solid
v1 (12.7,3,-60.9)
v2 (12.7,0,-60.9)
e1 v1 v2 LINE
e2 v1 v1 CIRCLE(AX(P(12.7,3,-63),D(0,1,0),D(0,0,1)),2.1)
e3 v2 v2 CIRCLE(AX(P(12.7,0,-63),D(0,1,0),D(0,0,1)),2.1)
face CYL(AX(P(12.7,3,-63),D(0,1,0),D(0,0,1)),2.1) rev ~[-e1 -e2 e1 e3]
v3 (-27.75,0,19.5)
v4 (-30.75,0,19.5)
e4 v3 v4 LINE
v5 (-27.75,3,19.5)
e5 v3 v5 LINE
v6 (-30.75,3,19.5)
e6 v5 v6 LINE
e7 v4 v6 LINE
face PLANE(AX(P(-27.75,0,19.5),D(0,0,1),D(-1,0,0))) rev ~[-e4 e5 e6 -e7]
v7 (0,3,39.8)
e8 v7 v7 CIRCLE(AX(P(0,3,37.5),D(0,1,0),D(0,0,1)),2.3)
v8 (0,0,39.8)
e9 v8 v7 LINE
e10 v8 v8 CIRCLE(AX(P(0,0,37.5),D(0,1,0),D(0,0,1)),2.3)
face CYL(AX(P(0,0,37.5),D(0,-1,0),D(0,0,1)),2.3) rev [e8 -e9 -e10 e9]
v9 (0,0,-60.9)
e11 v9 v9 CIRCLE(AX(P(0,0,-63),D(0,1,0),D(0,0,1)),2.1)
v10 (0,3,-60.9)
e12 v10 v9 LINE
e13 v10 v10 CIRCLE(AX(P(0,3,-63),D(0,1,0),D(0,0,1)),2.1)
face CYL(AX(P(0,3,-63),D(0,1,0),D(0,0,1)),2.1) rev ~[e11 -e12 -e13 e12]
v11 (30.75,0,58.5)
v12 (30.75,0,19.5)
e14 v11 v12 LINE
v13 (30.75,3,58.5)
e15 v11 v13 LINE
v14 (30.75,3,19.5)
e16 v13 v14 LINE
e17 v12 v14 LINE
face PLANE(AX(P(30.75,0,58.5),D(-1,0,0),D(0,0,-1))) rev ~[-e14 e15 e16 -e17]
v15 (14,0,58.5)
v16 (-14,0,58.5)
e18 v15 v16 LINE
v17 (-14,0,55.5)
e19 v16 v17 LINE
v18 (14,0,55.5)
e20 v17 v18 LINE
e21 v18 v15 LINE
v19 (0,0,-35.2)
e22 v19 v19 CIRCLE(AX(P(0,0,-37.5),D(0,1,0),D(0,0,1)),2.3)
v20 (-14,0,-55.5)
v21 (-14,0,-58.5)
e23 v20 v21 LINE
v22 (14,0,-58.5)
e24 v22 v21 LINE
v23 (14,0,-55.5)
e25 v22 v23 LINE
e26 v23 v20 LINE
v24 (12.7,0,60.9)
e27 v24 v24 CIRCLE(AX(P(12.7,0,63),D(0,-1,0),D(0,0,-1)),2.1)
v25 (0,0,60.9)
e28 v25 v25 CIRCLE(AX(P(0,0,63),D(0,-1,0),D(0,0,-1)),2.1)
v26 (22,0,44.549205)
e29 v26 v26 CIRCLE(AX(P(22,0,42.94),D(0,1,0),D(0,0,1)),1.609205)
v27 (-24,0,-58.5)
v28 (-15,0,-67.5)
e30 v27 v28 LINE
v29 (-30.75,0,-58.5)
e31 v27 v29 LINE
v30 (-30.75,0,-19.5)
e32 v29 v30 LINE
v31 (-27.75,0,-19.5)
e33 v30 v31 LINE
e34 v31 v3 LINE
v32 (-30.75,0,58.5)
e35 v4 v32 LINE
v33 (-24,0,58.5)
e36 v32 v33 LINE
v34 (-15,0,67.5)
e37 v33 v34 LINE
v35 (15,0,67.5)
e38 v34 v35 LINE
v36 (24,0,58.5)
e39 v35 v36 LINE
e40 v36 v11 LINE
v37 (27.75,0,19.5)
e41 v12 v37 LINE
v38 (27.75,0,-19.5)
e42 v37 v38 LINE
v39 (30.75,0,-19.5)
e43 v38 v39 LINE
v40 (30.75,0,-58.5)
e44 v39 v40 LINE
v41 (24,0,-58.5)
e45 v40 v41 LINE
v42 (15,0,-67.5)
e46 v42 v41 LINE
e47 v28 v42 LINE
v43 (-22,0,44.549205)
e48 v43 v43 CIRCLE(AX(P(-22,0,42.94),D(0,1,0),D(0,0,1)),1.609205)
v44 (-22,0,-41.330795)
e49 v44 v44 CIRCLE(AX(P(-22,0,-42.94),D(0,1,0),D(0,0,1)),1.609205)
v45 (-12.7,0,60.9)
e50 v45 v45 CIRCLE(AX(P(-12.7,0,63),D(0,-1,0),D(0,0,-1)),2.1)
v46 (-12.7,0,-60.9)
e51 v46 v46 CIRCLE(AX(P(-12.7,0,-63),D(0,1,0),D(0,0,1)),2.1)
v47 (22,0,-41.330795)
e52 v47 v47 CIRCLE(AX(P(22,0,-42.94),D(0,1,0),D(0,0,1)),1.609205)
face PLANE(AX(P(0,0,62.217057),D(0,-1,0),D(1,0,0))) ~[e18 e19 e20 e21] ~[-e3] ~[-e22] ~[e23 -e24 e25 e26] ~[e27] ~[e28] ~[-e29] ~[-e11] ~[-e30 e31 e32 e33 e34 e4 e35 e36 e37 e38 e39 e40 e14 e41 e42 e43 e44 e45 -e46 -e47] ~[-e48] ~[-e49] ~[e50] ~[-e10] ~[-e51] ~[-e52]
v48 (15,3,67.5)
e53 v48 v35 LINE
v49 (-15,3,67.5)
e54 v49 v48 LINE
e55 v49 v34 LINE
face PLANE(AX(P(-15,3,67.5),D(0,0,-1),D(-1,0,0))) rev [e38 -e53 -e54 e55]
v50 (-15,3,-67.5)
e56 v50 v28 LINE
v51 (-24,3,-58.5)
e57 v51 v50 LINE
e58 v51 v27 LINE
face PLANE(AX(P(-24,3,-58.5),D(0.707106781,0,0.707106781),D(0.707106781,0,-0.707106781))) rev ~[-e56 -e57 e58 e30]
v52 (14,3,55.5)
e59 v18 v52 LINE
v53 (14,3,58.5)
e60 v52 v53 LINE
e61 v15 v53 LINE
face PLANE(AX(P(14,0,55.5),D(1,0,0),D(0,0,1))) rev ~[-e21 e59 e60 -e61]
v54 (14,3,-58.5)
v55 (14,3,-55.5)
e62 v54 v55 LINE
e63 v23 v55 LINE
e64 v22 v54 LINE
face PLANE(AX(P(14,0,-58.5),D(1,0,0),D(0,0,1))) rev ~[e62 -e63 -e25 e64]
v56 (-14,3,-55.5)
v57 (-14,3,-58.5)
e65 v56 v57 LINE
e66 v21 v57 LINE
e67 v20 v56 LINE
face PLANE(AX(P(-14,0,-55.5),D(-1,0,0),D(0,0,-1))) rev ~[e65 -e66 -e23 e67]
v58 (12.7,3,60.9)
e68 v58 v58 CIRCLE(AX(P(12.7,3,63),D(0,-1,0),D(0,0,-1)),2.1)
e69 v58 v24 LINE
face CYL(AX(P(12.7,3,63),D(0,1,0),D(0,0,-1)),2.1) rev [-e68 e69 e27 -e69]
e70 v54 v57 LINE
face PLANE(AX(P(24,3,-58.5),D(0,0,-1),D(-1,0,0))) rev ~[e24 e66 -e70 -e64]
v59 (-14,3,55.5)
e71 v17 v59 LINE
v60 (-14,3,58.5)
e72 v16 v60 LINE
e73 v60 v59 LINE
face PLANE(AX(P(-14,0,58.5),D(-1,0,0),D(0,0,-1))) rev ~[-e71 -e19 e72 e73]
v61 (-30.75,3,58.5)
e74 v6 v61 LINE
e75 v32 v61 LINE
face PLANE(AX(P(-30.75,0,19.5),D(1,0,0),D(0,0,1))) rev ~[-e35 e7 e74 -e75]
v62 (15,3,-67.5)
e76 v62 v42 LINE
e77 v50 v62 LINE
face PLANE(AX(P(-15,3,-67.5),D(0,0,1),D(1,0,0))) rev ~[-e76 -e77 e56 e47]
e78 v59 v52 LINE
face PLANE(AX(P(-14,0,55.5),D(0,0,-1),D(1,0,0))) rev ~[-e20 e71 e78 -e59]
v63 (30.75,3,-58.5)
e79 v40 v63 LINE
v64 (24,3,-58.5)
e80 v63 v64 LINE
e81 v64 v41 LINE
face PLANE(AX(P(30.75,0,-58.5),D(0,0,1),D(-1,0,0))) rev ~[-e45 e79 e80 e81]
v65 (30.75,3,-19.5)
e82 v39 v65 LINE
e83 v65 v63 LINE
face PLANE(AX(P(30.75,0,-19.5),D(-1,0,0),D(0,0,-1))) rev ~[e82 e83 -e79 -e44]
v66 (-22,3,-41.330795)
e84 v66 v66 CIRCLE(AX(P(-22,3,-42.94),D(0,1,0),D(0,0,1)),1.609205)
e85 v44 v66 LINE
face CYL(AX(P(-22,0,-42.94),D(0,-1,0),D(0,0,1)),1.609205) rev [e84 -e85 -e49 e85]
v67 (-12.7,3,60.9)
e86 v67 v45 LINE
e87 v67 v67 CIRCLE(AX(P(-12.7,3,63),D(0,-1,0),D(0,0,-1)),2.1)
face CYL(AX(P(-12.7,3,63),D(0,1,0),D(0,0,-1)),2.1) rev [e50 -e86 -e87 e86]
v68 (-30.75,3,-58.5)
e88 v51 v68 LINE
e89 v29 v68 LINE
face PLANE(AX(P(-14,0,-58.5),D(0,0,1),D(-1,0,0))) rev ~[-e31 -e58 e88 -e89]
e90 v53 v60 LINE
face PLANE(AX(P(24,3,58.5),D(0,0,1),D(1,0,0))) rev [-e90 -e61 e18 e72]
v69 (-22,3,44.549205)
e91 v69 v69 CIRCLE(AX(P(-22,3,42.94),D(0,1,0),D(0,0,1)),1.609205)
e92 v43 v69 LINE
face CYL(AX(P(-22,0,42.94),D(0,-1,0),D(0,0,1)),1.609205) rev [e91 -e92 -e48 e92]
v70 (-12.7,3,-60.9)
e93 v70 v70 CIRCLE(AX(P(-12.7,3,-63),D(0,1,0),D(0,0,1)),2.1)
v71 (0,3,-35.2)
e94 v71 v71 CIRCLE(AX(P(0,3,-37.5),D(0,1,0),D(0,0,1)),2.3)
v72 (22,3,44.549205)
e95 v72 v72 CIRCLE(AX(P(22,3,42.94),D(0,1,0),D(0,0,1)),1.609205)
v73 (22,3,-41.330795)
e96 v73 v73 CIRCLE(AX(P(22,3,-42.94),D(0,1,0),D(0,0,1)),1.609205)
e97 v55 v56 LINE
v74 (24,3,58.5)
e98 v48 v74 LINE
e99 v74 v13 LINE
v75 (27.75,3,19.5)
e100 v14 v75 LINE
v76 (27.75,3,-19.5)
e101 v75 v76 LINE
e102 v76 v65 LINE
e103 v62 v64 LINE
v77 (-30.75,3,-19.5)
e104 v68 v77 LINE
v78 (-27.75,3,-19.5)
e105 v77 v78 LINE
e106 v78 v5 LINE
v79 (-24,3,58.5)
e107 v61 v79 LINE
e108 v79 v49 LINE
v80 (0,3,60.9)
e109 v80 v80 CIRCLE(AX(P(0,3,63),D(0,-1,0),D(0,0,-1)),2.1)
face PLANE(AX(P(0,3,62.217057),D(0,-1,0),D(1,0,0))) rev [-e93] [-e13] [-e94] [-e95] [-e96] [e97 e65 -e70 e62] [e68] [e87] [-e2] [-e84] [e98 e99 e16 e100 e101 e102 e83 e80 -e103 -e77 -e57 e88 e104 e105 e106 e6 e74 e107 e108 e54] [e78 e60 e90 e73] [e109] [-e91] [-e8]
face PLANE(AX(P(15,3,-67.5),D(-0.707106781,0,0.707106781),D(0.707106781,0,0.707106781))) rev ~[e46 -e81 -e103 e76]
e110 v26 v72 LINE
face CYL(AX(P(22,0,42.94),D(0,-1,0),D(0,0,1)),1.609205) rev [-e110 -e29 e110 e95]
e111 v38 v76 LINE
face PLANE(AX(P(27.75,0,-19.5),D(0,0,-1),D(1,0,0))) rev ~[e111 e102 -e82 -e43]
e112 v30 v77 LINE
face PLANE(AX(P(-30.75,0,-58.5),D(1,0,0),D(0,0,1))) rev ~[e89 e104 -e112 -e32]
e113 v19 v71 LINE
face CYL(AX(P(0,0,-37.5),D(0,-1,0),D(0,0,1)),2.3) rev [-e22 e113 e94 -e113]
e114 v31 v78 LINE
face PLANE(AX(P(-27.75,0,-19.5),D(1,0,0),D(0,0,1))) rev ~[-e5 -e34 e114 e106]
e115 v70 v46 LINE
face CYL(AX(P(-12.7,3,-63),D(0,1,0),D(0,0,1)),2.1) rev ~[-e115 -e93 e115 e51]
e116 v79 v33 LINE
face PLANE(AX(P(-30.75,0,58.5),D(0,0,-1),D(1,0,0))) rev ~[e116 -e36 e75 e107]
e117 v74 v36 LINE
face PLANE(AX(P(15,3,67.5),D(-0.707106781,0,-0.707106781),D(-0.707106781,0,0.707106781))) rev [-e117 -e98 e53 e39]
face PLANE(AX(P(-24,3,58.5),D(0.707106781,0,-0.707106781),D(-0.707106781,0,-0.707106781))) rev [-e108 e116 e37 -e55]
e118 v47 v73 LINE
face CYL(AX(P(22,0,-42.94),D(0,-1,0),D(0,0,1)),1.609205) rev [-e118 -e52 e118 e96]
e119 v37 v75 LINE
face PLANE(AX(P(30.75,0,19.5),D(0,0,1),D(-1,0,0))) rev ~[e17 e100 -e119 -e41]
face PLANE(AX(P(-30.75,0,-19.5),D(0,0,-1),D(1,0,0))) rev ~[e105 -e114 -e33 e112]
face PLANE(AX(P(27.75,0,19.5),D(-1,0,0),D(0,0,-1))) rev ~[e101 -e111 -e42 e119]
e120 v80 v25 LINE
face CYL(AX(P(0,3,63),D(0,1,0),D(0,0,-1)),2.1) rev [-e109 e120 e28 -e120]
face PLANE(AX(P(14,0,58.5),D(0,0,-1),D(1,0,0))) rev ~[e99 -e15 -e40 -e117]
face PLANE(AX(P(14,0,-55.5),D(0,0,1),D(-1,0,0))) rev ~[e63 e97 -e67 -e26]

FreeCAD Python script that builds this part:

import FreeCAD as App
import Part
import Sketcher


def add_polygon(sketch, points):
    """Adds a closed chain of lines whose ends are joined by coincident constraints."""
    first, n = sketch.GeometryCount, len(points)
    for a, b in zip(points, points[1:] + points[:1]):
        sketch.addGeometry(Part.LineSegment(App.Vector(*a, 0), App.Vector(*b, 0)), False)
    for i in range(n):
        sketch.addConstraint(Sketcher.Constraint("Coincident", first + i, 2, first + (i + 1) % n, 1))

doc = App.newDocument("Part")
body = doc.addObject("PartDesign::Body", "Body")

sketch1 = doc.addObject("Sketcher::SketchObject", "Sketch")
body.addObject(sketch1)
sketch1.AttachmentSupport = (doc.XZ_Plane, [""])
sketch1.MapMode = "FlatFace"
add_polygon(sketch1, [(-30.75, -58.5), (-30.75, -19.5), (-27.75, -19.5), (-27.75, 19.5), (-30.75, 19.5), (-30.75, 58.5), (-14, 58.5), (-14, 55.5), (14, 55.5), (14, 58.5), (30.75, 58.5), (30.75, 19.5), (27.75, 19.5), (27.75, -19.5), (30.75, -19.5), (30.75, -58.5), (14, -58.5), (14, -55.5), (-14, -55.5), (-14, -58.5)])
sketch1.addGeometry(Part.Circle(App.Vector(-22, 42.94, 0), App.Vector(0, 0, 1), 1.609205), False)
sketch1.addGeometry(Part.Circle(App.Vector(0, 37.5, 0), App.Vector(0, 0, 1), 2.3), False)
sketch1.addGeometry(Part.Circle(App.Vector(22, 42.94, 0), App.Vector(0, 0, 1), 1.609205), False)
sketch1.addGeometry(Part.Circle(App.Vector(-22, -42.94, 0), App.Vector(0, 0, 1), 1.609205), False)
sketch1.addGeometry(Part.Circle(App.Vector(0, -37.5, 0), App.Vector(0, 0, 1), 2.3), False)
sketch1.addGeometry(Part.Circle(App.Vector(22, -42.94, 0), App.Vector(0, 0, 1), 1.609205), False)
sketch1.addConstraint(Sketcher.Constraint("Vertical", 0))
sketch1.addConstraint(Sketcher.Constraint("Horizontal", 1))
sketch1.addConstraint(Sketcher.Constraint("Vertical", 2))
sketch1.addConstraint(Sketcher.Constraint("Horizontal", 3))
sketch1.addConstraint(Sketcher.Constraint("Vertical", 4))
sketch1.addConstraint(Sketcher.Constraint("Horizontal", 5))
sketch1.addConstraint(Sketcher.Constraint("Vertical", 6))
sketch1.addConstraint(Sketcher.Constraint("Horizontal", 7))
sketch1.addConstraint(Sketcher.Constraint("Vertical", 8))
sketch1.addConstraint(Sketcher.Constraint("Horizontal", 9))
sketch1.addConstraint(Sketcher.Constraint("Vertical", 10))
sketch1.addConstraint(Sketcher.Constraint("Horizontal", 11))
sketch1.addConstraint(Sketcher.Constraint("Vertical", 12))
sketch1.addConstraint(Sketcher.Constraint("Horizontal", 13))
sketch1.addConstraint(Sketcher.Constraint("Vertical", 14))
sketch1.addConstraint(Sketcher.Constraint("Horizontal", 15))
sketch1.addConstraint(Sketcher.Constraint("Vertical", 16))
sketch1.addConstraint(Sketcher.Constraint("Horizontal", 17))
sketch1.addConstraint(Sketcher.Constraint("Vertical", 18))
sketch1.addConstraint(Sketcher.Constraint("Horizontal", 19))
sketch1.addConstraint(Sketcher.Constraint("Equal", 20, 22))
sketch1.addConstraint(Sketcher.Constraint("Equal", 22, 23))
sketch1.addConstraint(Sketcher.Constraint("Equal", 21, 24))
sketch1.addConstraint(Sketcher.Constraint("Equal", 23, 25))
sketch1.addConstraint(Sketcher.Constraint("Symmetric", 22, 3, 23, 3, -1, 1))
sketch1.addConstraint(Sketcher.Constraint("Symmetric", 21, 3, 24, 3, -1, 1))
sketch1.addConstraint(Sketcher.Constraint("Symmetric", 20, 3, 25, 3, -1, 1))
sketch1.addConstraint(Sketcher.Constraint("Symmetric", 0, 2, 10, 2, -1, 1))
sketch1.addConstraint(Sketcher.Constraint("Symmetric", 2, 2, 12, 2, -1, 1))
sketch1.addConstraint(Sketcher.Constraint("Symmetric", 4, 2, 14, 2, -1, 1))
sketch1.addConstraint(Sketcher.Constraint("Symmetric", 6, 2, 16, 2, -1, 1))
sketch1.addConstraint(Sketcher.Constraint("Symmetric", 8, 2, 18, 2, -1, 1))
sketch1.addConstraint(Sketcher.Constraint("Symmetric", 20, 3, 22, 3, -2))
sketch1.addConstraint(Sketcher.Constraint("Symmetric", 5, 2, 8, 2, -2))
sketch1.addConstraint(Sketcher.Constraint("Symmetric", 3, 2, 10, 2, -2))
sketch1.addConstraint(Sketcher.Constraint("PointOnObject", 21, 3, -2))
sketch1.addConstraint(Sketcher.Constraint("Equal", 0, 2))
sketch1.addConstraint(Sketcher.Constraint("Equal", 13, 6))
sketch1.addConstraint(Sketcher.Constraint("Diameter", 21, 4.6))
sketch1.addConstraint(Sketcher.Constraint("DistanceX", 1, 1, 1, 2, 3.0))
sketch1.addConstraint(Sketcher.Constraint("DistanceX", 7, 1, 7, 2, 28.0))
sketch1.addConstraint(Sketcher.Constraint("DistanceY", 0, 1, 0, 2, 39.0))
sketch1.addConstraint(Sketcher.Constraint("DistanceX", 20, 3, -1, 1, 22.0))
sketch1.addConstraint(Sketcher.Constraint("DistanceY", 24, 3, 21, 3, 75.0))
sketch1.addConstraint(Sketcher.Constraint("DistanceX", 5, 1, 5, 2, 16.75))
sketch1.addConstraint(Sketcher.Constraint("Diameter", 20, 3.21841))
sketch1.addConstraint(Sketcher.Constraint("DistanceY", -1, 1, 20, 3, 42.94))
pad1 = doc.addObject("PartDesign::Pad", "Pad")
body.addObject(pad1)
pad1.Profile = sketch1
pad1.Length = 3
pad1.Reversed = True

sketch2 = doc.addObject("Sketcher::SketchObject", "Sketch001")
body.addObject(sketch2)
sketch2.AttachmentSupport = (doc.XZ_Plane, [""])
sketch2.MapMode = "FlatFace"
sketch2.AttachmentOffset = App.Placement(App.Vector(0, 0, -3), App.Rotation())
add_polygon(sketch2, [(-15, -67.5), (-24, -58.5), (24, -58.5), (15, -67.5)])
sketch2.addGeometry(Part.Circle(App.Vector(12.7, -63, 0), App.Vector(0, 0, 1), 2.1), False)
sketch2.addGeometry(Part.Circle(App.Vector(0, -63, 0), App.Vector(0, 0, 1), 2.1), False)
sketch2.addGeometry(Part.Circle(App.Vector(-12.7, -63, 0), App.Vector(0, 0, 1), 2.1), False)
sketch2.addConstraint(Sketcher.Constraint("Horizontal", 1))
sketch2.addConstraint(Sketcher.Constraint("Horizontal", 3))
sketch2.addConstraint(Sketcher.Constraint("Equal", 4, 5))
sketch2.addConstraint(Sketcher.Constraint("Equal", 5, 6))
sketch2.addConstraint(Sketcher.Constraint("Symmetric", 4, 3, 6, 3, -2))
sketch2.addConstraint(Sketcher.Constraint("PointOnObject", 5, 3, -2))
sketch2.addConstraint(Sketcher.Constraint("Perpendicular", 0, 2))
sketch2.addConstraint(Sketcher.Constraint("Horizontal", 4, 3, 5, 3))
sketch2.addConstraint(Sketcher.Constraint("Equal", 0, 2))
sketch2.addConstraint(Sketcher.Constraint("Diameter", 4, 4.2))
sketch2.addConstraint(Sketcher.Constraint("DistanceX", 1, 1, 1, 2, 48.0))
sketch2.addConstraint(Sketcher.Constraint("DistanceX", 3, 2, 3, 1, 30.0))
sketch2.addConstraint(Sketcher.Constraint("DistanceY", 4, 3, -1, 1, 63.0))
sketch2.addConstraint(Sketcher.Constraint("DistanceX", 0, 2, -1, 1, 24.0))
sketch2.addConstraint(Sketcher.Constraint("DistanceX", -1, 1, 4, 3, 12.7))
sketch2.addConstraint(Sketcher.Constraint("DistanceY", 0, 2, -1, 1, 58.5))
pad2 = doc.addObject("PartDesign::Pad", "Pad001")
body.addObject(pad2)
pad2.Profile = sketch2
pad2.Length = 3
doc.recompute()

mirrored = doc.addObject("PartDesign::Mirrored", "Mirrored")
body.addObject(mirrored)
mirrored.Originals = [pad2]
mirrored.MirrorPlane = (doc.XY_Plane, [""])
body.Tip = mirrored

doc.recompute()
